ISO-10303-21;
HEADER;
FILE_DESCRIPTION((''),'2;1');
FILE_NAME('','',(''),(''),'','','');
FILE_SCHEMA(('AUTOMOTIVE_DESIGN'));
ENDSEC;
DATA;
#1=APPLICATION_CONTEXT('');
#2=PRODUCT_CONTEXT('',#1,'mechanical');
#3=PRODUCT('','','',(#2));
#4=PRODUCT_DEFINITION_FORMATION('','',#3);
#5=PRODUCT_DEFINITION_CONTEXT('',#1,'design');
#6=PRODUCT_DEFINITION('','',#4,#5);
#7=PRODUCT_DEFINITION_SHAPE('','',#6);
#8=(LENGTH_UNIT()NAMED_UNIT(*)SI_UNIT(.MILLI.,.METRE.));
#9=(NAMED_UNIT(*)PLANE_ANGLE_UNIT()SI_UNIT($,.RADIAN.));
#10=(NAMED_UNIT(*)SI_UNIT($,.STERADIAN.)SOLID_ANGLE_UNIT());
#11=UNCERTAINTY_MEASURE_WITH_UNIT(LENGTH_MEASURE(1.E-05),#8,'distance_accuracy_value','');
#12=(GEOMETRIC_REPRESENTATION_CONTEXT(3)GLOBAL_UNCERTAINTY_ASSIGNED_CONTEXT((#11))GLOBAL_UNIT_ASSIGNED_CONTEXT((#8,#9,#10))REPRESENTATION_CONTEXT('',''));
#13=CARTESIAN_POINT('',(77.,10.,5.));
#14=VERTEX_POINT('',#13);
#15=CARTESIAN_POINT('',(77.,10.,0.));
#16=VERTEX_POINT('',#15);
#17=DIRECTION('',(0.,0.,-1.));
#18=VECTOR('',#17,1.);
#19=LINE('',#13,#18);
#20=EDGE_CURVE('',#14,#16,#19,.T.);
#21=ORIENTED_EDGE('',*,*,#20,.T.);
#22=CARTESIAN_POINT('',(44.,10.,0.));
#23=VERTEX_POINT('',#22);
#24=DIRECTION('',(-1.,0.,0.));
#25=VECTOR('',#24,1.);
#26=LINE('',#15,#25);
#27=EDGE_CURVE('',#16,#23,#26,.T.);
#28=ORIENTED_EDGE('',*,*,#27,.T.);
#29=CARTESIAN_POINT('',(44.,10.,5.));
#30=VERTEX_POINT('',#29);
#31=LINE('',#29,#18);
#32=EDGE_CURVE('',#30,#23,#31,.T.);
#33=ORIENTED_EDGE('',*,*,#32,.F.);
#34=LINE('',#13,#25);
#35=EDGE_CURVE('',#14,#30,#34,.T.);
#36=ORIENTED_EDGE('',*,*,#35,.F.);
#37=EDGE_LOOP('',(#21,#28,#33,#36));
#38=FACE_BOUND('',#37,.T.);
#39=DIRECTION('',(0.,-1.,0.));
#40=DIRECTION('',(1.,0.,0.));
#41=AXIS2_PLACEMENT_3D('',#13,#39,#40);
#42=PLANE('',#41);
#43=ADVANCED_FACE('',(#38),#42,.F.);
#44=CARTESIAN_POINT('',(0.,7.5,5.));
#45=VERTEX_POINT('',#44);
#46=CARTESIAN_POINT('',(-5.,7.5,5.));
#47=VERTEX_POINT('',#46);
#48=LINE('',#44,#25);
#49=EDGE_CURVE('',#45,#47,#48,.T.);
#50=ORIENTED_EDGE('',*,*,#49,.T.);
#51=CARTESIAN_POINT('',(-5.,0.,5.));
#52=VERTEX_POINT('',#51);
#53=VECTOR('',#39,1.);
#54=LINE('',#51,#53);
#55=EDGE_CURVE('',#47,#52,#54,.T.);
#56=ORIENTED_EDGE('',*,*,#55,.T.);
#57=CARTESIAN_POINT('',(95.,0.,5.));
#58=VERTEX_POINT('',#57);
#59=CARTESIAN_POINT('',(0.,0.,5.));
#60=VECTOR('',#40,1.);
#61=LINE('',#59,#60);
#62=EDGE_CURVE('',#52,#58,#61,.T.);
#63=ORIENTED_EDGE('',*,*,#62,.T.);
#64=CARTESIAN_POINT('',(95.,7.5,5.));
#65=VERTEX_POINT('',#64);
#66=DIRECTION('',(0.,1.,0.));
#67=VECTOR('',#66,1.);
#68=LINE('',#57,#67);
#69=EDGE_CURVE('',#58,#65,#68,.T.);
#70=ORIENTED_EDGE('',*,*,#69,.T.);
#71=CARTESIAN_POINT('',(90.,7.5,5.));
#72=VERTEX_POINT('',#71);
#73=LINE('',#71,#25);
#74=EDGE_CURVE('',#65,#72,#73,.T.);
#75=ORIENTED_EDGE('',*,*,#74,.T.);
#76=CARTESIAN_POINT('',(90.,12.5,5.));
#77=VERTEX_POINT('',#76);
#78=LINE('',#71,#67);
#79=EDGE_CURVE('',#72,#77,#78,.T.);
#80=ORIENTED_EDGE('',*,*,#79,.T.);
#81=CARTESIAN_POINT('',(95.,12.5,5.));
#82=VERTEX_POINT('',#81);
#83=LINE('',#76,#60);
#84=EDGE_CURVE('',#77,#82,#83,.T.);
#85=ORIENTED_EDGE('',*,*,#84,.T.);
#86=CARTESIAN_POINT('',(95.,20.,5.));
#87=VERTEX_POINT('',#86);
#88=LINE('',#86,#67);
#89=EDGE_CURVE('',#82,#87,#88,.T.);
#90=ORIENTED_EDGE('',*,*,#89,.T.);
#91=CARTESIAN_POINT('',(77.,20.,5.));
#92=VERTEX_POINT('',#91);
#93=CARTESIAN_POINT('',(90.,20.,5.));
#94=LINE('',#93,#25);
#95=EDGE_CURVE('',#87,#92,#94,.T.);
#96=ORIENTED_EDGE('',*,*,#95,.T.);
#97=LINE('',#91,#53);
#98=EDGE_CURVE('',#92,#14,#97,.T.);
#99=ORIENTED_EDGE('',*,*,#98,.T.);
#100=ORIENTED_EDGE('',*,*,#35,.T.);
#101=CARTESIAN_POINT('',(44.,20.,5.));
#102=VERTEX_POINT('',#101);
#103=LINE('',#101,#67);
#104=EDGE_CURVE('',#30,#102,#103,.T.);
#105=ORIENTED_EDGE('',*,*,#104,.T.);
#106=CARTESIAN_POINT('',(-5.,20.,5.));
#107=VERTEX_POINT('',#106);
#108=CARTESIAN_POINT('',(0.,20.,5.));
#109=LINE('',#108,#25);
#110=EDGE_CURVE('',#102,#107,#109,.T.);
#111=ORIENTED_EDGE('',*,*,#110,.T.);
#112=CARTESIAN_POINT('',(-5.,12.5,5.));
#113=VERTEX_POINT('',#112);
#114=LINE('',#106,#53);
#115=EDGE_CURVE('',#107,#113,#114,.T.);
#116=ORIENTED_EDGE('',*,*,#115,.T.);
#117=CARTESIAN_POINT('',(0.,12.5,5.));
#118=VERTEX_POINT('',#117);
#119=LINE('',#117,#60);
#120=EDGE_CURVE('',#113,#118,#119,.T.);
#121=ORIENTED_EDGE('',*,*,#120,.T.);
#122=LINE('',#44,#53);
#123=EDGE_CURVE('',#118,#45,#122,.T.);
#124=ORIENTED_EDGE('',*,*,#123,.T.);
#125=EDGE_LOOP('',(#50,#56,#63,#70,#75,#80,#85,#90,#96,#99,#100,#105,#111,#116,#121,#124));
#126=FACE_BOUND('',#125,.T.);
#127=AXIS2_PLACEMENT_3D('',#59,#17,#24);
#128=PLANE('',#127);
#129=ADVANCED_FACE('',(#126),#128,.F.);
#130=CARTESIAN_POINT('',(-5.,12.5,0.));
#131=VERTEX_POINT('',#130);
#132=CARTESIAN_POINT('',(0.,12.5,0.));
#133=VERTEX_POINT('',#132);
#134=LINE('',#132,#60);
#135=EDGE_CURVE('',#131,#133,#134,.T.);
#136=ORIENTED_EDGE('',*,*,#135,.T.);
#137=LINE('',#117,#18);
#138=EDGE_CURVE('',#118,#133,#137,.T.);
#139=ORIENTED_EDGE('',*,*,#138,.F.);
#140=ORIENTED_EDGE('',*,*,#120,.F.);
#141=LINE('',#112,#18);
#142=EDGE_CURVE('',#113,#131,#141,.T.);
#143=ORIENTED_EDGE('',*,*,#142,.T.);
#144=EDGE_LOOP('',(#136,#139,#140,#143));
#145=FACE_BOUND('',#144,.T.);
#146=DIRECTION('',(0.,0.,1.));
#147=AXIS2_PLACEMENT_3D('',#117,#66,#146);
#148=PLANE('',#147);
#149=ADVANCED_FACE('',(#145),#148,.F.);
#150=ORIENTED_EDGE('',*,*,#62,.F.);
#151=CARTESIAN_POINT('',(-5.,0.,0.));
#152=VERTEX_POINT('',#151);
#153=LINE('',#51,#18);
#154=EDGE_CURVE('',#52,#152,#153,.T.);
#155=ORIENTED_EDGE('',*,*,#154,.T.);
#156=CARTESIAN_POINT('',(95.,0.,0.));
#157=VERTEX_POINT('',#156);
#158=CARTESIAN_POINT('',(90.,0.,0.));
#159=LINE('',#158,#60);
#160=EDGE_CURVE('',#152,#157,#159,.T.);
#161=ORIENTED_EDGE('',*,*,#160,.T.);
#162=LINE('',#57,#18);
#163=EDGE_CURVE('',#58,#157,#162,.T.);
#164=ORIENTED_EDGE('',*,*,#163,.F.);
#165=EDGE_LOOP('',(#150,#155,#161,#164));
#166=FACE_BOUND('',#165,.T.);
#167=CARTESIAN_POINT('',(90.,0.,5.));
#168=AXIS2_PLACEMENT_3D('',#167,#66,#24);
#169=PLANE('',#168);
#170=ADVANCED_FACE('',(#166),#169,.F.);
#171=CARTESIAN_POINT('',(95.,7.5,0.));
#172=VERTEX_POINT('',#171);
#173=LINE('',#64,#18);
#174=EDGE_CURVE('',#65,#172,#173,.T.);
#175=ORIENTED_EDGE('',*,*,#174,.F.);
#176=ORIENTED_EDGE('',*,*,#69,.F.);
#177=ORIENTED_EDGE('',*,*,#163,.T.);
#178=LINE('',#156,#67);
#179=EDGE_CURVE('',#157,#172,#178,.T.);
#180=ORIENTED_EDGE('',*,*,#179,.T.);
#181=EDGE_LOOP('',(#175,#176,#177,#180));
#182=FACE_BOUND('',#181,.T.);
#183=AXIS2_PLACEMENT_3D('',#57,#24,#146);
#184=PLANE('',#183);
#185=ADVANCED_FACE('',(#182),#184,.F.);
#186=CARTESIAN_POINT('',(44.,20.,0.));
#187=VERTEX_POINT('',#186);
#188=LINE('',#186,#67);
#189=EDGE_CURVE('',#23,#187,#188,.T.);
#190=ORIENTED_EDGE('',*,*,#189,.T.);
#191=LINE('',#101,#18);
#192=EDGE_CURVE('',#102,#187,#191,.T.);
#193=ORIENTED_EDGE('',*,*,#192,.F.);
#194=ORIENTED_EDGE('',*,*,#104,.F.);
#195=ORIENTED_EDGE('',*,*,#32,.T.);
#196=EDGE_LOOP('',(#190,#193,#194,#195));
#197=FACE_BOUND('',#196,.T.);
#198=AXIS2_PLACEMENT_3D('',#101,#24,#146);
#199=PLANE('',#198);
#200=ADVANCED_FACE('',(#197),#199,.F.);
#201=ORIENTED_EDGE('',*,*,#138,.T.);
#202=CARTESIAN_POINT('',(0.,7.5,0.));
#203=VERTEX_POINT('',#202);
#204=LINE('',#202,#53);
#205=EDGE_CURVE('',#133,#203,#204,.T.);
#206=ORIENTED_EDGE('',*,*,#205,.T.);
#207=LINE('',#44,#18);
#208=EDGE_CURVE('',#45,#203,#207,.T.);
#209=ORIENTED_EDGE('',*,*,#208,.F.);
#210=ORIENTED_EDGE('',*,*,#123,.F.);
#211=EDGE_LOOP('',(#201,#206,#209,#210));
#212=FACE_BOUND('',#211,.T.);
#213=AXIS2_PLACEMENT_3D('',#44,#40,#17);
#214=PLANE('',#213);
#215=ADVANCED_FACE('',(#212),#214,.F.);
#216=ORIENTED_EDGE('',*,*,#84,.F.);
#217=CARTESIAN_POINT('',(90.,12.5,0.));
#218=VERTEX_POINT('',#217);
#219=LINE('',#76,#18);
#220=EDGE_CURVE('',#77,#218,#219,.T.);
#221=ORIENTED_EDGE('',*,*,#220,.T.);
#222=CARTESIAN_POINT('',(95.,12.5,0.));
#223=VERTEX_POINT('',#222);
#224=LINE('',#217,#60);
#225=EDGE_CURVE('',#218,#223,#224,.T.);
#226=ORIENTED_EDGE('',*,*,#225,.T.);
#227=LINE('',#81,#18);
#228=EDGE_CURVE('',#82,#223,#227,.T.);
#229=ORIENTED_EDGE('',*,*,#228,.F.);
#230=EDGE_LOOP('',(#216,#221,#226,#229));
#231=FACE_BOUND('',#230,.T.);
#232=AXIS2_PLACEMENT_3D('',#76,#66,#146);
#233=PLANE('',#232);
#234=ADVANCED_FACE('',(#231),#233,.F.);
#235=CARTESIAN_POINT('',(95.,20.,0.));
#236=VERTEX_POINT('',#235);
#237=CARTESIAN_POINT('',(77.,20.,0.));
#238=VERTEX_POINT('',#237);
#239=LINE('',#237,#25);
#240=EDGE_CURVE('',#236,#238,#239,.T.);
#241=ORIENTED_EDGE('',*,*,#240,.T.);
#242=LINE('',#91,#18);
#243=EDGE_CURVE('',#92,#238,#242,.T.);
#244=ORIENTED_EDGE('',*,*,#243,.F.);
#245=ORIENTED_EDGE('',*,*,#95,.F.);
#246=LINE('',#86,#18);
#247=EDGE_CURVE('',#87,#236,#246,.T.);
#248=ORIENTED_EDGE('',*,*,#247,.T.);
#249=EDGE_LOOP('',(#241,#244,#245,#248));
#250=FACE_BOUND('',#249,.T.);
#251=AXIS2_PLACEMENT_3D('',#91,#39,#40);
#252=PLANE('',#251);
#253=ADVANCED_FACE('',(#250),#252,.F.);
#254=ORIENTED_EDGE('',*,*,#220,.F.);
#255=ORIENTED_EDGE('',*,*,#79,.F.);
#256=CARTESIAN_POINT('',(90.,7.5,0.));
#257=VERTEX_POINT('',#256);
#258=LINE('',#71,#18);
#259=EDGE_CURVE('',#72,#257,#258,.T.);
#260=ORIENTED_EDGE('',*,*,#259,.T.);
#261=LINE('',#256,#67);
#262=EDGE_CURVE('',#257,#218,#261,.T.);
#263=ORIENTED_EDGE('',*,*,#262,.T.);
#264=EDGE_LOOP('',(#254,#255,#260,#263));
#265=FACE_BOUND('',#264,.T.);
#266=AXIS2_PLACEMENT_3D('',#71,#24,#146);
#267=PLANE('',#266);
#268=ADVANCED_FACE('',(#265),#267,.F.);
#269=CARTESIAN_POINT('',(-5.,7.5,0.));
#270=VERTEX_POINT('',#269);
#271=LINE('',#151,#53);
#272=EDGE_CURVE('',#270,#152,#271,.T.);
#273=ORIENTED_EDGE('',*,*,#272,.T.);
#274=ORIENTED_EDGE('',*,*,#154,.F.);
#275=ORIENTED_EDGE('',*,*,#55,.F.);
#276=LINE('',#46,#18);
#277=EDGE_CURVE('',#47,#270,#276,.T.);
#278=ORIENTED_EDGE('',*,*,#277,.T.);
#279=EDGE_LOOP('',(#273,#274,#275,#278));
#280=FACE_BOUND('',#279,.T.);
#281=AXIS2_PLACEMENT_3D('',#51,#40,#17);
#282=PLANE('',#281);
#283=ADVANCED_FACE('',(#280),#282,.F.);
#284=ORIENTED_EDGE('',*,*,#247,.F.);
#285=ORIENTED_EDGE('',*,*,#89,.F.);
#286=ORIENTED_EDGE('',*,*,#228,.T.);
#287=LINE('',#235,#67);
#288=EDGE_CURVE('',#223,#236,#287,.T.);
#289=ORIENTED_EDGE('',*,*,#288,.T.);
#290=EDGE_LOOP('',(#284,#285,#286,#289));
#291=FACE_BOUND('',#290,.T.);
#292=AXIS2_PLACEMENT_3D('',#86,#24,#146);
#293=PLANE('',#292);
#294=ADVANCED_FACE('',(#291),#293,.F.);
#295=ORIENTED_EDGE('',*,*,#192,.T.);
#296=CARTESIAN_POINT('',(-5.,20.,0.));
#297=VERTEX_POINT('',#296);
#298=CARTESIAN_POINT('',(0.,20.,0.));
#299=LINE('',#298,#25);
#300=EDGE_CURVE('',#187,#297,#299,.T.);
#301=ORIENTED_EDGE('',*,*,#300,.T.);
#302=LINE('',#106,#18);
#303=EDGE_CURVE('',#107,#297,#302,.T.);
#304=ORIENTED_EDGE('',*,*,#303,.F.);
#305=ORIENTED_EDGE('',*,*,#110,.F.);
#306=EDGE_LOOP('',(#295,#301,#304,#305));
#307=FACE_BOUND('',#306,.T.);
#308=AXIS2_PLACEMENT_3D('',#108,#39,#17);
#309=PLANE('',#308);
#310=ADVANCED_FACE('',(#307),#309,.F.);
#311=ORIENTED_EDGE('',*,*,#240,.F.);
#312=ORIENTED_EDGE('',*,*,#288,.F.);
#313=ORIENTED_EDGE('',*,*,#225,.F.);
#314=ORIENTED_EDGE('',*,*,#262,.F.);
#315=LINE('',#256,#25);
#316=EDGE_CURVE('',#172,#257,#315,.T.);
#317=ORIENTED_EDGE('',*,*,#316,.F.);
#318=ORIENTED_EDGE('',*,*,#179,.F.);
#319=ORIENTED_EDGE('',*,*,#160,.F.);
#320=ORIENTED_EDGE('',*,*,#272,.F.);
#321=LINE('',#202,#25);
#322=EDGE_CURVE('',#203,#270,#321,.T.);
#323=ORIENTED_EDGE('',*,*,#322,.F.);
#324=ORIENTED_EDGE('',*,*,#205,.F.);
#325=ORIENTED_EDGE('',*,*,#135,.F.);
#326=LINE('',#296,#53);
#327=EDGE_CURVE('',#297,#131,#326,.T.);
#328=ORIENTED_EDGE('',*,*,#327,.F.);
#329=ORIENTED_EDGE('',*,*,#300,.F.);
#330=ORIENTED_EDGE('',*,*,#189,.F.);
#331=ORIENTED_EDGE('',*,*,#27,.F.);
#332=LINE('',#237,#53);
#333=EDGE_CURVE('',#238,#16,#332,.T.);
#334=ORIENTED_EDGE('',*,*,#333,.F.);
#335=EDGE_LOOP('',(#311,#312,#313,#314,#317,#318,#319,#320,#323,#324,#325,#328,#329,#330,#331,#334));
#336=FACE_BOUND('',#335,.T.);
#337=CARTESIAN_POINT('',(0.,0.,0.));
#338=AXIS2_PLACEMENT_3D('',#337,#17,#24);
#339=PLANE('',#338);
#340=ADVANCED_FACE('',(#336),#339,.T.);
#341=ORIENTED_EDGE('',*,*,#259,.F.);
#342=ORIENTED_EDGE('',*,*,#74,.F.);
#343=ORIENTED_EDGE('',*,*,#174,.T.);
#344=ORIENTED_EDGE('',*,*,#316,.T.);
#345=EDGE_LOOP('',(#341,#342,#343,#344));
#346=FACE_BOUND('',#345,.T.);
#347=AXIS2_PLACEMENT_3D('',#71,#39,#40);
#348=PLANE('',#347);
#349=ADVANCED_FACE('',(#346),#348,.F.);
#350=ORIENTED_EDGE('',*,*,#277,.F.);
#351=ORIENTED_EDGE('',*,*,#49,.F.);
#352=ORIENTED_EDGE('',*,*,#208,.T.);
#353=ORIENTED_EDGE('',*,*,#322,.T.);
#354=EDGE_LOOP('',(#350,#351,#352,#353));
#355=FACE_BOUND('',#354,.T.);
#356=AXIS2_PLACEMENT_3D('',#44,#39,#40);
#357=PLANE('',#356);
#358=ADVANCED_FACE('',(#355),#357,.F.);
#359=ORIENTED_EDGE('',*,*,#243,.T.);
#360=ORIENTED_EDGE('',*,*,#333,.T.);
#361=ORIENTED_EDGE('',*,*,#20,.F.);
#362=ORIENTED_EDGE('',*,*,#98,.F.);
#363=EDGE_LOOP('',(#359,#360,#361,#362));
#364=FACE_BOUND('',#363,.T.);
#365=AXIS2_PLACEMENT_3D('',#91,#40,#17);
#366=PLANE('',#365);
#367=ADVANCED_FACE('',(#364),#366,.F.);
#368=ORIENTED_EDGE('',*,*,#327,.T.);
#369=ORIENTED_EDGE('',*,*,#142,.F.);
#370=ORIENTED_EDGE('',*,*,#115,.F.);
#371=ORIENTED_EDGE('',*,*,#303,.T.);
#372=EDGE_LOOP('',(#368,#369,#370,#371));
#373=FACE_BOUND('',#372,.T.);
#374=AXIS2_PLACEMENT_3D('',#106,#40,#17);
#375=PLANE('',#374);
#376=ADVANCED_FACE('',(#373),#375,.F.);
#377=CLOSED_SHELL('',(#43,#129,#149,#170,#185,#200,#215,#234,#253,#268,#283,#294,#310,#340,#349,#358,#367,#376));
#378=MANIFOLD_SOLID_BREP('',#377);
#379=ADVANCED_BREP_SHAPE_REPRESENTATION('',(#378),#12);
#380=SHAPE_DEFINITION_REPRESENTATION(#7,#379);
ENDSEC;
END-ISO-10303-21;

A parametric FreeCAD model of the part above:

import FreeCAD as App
import Part
import Sketcher
from FreeCAD import Vector

doc = App.newDocument("Part")
body = doc.addObject("PartDesign::Body", "Body")

sketch1 = doc.addObject("Sketcher::SketchObject", "Sketch")
body.addObject(sketch1)
sketch1.AttachmentSupport = (doc.XY_Plane, [""])
sketch1.MapMode = "FlatFace"
sketch1.addGeometry([
    Part.LineSegment(Vector(95, 0, 0), Vector(95, 8, 0)),
    Part.LineSegment(Vector(95, 8, 0), Vector(90, 8, 0)),
    Part.LineSegment(Vector(90, 8, 0), Vector(90, 12, 0)),
    Part.LineSegment(Vector(90, 12, 0), Vector(95, 12, 0)),
    Part.LineSegment(Vector(95, 12, 0), Vector(95, 20, 0)),
    Part.LineSegment(Vector(95, 20, 0), Vector(77, 20, 0)),
    Part.LineSegment(Vector(77, 20, 0), Vector(77, 10, 0)),
    Part.LineSegment(Vector(77, 10, 0), Vector(44, 10, 0)),
    Part.LineSegment(Vector(44, 10, 0), Vector(44, 20, 0)),
    Part.LineSegment(Vector(44, 20, 0), Vector(-5, 20, 0)),
    Part.LineSegment(Vector(-5, 20, 0), Vector(-5, 12, 0)),
    Part.LineSegment(Vector(-5, 12, 0), Vector(0, 12, 0)),
    Part.LineSegment(Vector(0, 12, 0), Vector(0, 8, 0)),
    Part.LineSegment(Vector(0, 8, 0), Vector(-5, 8, 0)),
    Part.LineSegment(Vector(-5, 8, 0), Vector(-5, 0, 0)),
    Part.LineSegment(Vector(-5, 0, 0), Vector(95, 0, 0)),
], False)
sketch1.addConstraint([
    Sketcher.Constraint("Coincident", 0, 2, 1, 1),
    Sketcher.Constraint("Coincident", 1, 2, 2, 1),
    Sketcher.Constraint("Coincident", 2, 2, 3, 1),
    Sketcher.Constraint("Coincident", 3, 2, 4, 1),
    Sketcher.Constraint("Coincident", 4, 2, 5, 1),
    Sketcher.Constraint("Coincident", 5, 2, 6, 1),
    Sketcher.Constraint("Coincident", 6, 2, 7, 1),
    Sketcher.Constraint("Coincident", 7, 2, 8, 1),
    Sketcher.Constraint("Coincident", 8, 2, 9, 1),
    Sketcher.Constraint("Coincident", 9, 2, 10, 1),
    Sketcher.Constraint("Coincident", 10, 2, 11, 1),
    Sketcher.Constraint("Coincident", 11, 2, 12, 1),
    Sketcher.Constraint("Coincident", 12, 2, 13, 1),
    Sketcher.Constraint("Coincident", 13, 2, 14, 1),
    Sketcher.Constraint("Coincident", 14, 2, 15, 1),
    Sketcher.Constraint("Coincident", 15, 2, 0, 1),
    Sketcher.Constraint("Vertical", 0),
    Sketcher.Constraint("Horizontal", 1),
    Sketcher.Constraint("Vertical", 2),
    Sketcher.Constraint("Horizontal", 3),
    Sketcher.Constraint("Vertical", 4),
    Sketcher.Constraint("Horizontal", 5),
    Sketcher.Constraint("Vertical", 6),
    Sketcher.Constraint("Horizontal", 7),
    Sketcher.Constraint("Vertical", 8),
    Sketcher.Constraint("Horizontal", 9),
    Sketcher.Constraint("Vertical", 10),
    Sketcher.Constraint("Horizontal", 11),
    Sketcher.Constraint("Vertical", 12),
    Sketcher.Constraint("Horizontal", 13),
    Sketcher.Constraint("Vertical", 14),
    Sketcher.Constraint("Horizontal", 15),
    Sketcher.Constraint("PointOnObject", 11, 2, -2),
    Sketcher.Constraint("PointOnObject", 14, 2, -1),
    Sketcher.Constraint("Horizontal", 5, 2, 8, 2),
    Sketcher.Constraint("Horizontal", 3, 2, 10, 2),
    Sketcher.Constraint("Horizontal", 1, 2, 12, 2),
    Sketcher.Constraint("Vertical", 0, 2, 3, 2),
    Sketcher.Constraint("Vertical", 10, 2, 13, 2),
    Sketcher.Constraint("Equal", 3, 11),
    Sketcher.Constraint("Equal", 13, 2),
    Sketcher.Constraint("Equal", 0, 4),
    Sketcher.Constraint("DistanceX", 1, 2, 1, 1, 5.0),
    Sketcher.Constraint("DistanceX", 5, 2, 5, 1, 18.0),
    Sketcher.Constraint("DistanceX", 7, 2, 7, 1, 33.0),
    Sketcher.Constraint("DistanceX", 9, 2, 9, 1, 49.0),
    Sketcher.Constraint("DistanceY", 6, 2, 6, 1, 10.0),
    Sketcher.Constraint("DistanceY", 0, 1, 0, 2, 7.5),
])
pad1 = doc.addObject("PartDesign::Pad", "Pad")
body.addObject(pad1)
pad1.Profile = sketch1
pad1.Length = 5

doc.recompute()
